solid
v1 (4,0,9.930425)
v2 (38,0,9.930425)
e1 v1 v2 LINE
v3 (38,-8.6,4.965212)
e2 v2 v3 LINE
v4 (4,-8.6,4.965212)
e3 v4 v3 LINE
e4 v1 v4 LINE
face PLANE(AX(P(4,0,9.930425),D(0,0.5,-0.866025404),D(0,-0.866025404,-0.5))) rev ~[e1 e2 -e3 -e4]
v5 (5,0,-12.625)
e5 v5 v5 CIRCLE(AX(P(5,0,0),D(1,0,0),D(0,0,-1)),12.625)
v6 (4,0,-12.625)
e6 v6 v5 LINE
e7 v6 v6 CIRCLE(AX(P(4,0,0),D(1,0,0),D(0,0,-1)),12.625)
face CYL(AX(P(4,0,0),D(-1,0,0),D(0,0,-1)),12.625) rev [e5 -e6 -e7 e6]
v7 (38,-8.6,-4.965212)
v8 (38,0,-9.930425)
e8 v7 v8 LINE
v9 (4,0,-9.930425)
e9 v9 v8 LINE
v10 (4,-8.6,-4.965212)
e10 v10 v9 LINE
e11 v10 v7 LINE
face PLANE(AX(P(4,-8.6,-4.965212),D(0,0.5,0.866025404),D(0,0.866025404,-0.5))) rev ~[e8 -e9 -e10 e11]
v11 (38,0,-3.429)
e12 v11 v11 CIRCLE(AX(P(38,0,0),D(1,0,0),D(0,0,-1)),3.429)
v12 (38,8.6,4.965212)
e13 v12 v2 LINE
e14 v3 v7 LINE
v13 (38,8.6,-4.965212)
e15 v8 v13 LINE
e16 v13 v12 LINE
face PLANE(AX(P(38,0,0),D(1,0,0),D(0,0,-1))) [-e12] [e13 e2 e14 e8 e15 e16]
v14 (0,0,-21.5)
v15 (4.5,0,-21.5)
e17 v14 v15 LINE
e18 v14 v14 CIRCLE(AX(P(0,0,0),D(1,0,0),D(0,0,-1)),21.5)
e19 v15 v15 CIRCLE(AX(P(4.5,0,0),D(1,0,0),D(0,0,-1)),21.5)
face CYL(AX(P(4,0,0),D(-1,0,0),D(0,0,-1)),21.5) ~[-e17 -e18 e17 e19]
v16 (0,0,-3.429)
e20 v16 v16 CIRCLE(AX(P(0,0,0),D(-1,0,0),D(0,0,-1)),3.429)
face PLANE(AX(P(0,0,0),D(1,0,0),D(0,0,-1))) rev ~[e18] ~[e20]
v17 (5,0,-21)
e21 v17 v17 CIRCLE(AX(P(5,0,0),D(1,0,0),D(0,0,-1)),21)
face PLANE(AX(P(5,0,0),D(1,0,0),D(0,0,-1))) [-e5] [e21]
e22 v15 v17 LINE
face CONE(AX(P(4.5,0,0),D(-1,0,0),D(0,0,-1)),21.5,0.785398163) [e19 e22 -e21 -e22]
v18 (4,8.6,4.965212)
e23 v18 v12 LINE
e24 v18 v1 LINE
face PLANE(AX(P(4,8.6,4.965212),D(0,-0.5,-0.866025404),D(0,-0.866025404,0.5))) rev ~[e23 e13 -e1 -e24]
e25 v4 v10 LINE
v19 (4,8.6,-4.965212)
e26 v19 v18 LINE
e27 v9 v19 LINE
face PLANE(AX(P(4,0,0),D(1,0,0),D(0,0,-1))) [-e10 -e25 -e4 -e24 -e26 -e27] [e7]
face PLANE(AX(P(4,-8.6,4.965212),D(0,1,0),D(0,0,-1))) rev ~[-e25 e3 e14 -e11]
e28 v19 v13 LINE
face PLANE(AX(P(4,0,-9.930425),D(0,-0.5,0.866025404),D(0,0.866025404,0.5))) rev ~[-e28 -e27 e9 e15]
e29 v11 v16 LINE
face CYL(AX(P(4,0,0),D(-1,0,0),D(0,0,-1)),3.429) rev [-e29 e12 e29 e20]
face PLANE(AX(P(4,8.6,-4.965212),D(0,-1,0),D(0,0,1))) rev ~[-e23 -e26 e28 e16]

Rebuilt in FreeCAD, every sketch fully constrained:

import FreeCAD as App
import Part
import Sketcher
from FreeCAD import Vector
Q = App.Units.Quantity


def edges_at(feature, points):
    """Names of the edges that pass closest to the given points."""
    edges = feature.Shape.Edges
    near = lambda p: min(range(len(edges)), key=lambda i: edges[i].distToShape(Part.Vertex(*p))[0])
    return sorted({f"Edge{near(p) + 1}" for p in points})

doc = App.newDocument("Part")
body = doc.addObject("PartDesign::Body", "Body")

sketch1 = doc.addObject("Sketcher::SketchObject", "Sketch")
body.addObject(sketch1)
sketch1.AttachmentSupport = (doc.YZ_Plane, [""])
sketch1.MapMode = "FlatFace"
sketch1.addGeometry(Part.Circle(Vector(0, 0, 0), Vector(0, 0, 1), 21.5), False)
sketch1.addConstraint([
    Sketcher.Constraint("Coincident", 0, 3, -1, 1),
    Sketcher.Constraint("Diameter", 0, 43.0),
])
pad1 = doc.addObject("PartDesign::Pad", "Pad")
body.addObject(pad1)
pad1.Profile = sketch1
pad1.Length = 4

sketch2 = doc.addObject("Sketcher::SketchObject", "Sketch001")
body.addObject(sketch2)
sketch2.AttachmentSupport = (doc.YZ_Plane, [""])
sketch2.MapMode = "FlatFace"
sketch2.AttachmentOffset = App.Placement(Vector(0, 0, 4), App.Rotation())
sketch2.addGeometry([
    Part.Circle(Vector(0, 0, 0), Vector(0, 0, 1), 21.5),
    Part.Circle(Vector(0, 0, 0), Vector(0, 0, 1), 12.625),
], False)
sketch2.addConstraint([
    Sketcher.Constraint("Coincident", 0, 3, -1, 1),
    Sketcher.Constraint("Coincident", 1, 3, -1, 1),
    Sketcher.Constraint("Diameter", 0, 43.0),
    Sketcher.Constraint("Diameter", 1, 25.25),
])
pad2 = doc.addObject("PartDesign::Pad", "Pad001")
body.addObject(pad2)
pad2.Profile = sketch2
pad2.Length = 1

sketch3 = doc.addObject("Sketcher::SketchObject", "Sketch002")
body.addObject(sketch3)
sketch3.AttachmentSupport = (doc.YZ_Plane, [""])
sketch3.MapMode = "FlatFace"
sketch3.addGeometry(Part.Circle(Vector(0, 0, 0), Vector(0, 0, 1), 3.429), False)
sketch3.addConstraint([
    Sketcher.Constraint("Coincident", 0, 3, -1, 1),
    Sketcher.Constraint("Diameter", 0, 6.858),
])
pocket1 = doc.addObject("PartDesign::Pocket", "Pocket")
body.addObject(pocket1)
pocket1.Profile = sketch3
pocket1.Type = "ThroughAll"
pocket1.Midplane = True

sketch4 = doc.addObject("Sketcher::SketchObject", "Sketch003")
body.addObject(sketch4)
sketch4.AttachmentSupport = (doc.YZ_Plane, [""])
sketch4.MapMode = "FlatFace"
sketch4.AttachmentOffset = App.Placement(Vector(0, 0, 4), App.Rotation())
sketch4.addGeometry([
    Part.LineSegment(Vector(-8.6, -4.965212, 0), Vector(0, -9.930425, 0)),
    Part.LineSegment(Vector(0, -9.930425, 0), Vector(8.6, -4.965212, 0)),
    Part.LineSegment(Vector(8.6, -4.965212, 0), Vector(8.6, 4.965212, 0)),
    Part.LineSegment(Vector(8.6, 4.965212, 0), Vector(0, 9.930425, 0)),
    Part.LineSegment(Vector(0, 9.930425, 0), Vector(-8.6, 4.965212, 0)),
    Part.LineSegment(Vector(-8.6, 4.965212, 0), Vector(-8.6, -4.965212, 0)),
    Part.Circle(Vector(0, 0, 0), Vector(0, 0, 1), 3.429),
], False)
sketch4.addConstraint([
    Sketcher.Constraint("Coincident", 0, 2, 1, 1),
    Sketcher.Constraint("Coincident", 1, 2, 2, 1),
    Sketcher.Constraint("Coincident", 2, 2, 3, 1),
    Sketcher.Constraint("Coincident", 3, 2, 4, 1),
    Sketcher.Constraint("Coincident", 4, 2, 5, 1),
    Sketcher.Constraint("Coincident", 5, 2, 0, 1),
    Sketcher.Constraint("Vertical", 2),
    Sketcher.Constraint("Vertical", 5),
    Sketcher.Constraint("Coincident", 6, 3, -1, 1),
    Sketcher.Constraint("Symmetric", 0, 2, 3, 2, -1, 1),
    Sketcher.Constraint("Symmetric", 1, 2, 4, 2, -1, 1),
    Sketcher.Constraint("PointOnObject", 0, 2, -2),
    Sketcher.Constraint("Parallel", 0, 3),
    Sketcher.Constraint("Horizontal", 2, 2, 4, 2),
    Sketcher.Constraint("Angle", 0, Q("-30 deg")),
    Sketcher.Constraint("Diameter", 6, 6.858),
    Sketcher.Constraint("DistanceX", -1, 1, 1, 2, 8.6),
    Sketcher.Constraint("DistanceY", 2, 1, 2, 2, 9.930425),
])
pad3 = doc.addObject("PartDesign::Pad", "Pad002")
body.addObject(pad3)
pad3.Profile = sketch4
pad3.Length = 34
doc.recompute()

chamfer = doc.addObject("PartDesign::Chamfer", "Chamfer")
body.addObject(chamfer)
chamfer.Base = (pad3, edges_at(pad3, [(5, 0, 21.5)]))
chamfer.Size = 0.5

doc.recompute()
